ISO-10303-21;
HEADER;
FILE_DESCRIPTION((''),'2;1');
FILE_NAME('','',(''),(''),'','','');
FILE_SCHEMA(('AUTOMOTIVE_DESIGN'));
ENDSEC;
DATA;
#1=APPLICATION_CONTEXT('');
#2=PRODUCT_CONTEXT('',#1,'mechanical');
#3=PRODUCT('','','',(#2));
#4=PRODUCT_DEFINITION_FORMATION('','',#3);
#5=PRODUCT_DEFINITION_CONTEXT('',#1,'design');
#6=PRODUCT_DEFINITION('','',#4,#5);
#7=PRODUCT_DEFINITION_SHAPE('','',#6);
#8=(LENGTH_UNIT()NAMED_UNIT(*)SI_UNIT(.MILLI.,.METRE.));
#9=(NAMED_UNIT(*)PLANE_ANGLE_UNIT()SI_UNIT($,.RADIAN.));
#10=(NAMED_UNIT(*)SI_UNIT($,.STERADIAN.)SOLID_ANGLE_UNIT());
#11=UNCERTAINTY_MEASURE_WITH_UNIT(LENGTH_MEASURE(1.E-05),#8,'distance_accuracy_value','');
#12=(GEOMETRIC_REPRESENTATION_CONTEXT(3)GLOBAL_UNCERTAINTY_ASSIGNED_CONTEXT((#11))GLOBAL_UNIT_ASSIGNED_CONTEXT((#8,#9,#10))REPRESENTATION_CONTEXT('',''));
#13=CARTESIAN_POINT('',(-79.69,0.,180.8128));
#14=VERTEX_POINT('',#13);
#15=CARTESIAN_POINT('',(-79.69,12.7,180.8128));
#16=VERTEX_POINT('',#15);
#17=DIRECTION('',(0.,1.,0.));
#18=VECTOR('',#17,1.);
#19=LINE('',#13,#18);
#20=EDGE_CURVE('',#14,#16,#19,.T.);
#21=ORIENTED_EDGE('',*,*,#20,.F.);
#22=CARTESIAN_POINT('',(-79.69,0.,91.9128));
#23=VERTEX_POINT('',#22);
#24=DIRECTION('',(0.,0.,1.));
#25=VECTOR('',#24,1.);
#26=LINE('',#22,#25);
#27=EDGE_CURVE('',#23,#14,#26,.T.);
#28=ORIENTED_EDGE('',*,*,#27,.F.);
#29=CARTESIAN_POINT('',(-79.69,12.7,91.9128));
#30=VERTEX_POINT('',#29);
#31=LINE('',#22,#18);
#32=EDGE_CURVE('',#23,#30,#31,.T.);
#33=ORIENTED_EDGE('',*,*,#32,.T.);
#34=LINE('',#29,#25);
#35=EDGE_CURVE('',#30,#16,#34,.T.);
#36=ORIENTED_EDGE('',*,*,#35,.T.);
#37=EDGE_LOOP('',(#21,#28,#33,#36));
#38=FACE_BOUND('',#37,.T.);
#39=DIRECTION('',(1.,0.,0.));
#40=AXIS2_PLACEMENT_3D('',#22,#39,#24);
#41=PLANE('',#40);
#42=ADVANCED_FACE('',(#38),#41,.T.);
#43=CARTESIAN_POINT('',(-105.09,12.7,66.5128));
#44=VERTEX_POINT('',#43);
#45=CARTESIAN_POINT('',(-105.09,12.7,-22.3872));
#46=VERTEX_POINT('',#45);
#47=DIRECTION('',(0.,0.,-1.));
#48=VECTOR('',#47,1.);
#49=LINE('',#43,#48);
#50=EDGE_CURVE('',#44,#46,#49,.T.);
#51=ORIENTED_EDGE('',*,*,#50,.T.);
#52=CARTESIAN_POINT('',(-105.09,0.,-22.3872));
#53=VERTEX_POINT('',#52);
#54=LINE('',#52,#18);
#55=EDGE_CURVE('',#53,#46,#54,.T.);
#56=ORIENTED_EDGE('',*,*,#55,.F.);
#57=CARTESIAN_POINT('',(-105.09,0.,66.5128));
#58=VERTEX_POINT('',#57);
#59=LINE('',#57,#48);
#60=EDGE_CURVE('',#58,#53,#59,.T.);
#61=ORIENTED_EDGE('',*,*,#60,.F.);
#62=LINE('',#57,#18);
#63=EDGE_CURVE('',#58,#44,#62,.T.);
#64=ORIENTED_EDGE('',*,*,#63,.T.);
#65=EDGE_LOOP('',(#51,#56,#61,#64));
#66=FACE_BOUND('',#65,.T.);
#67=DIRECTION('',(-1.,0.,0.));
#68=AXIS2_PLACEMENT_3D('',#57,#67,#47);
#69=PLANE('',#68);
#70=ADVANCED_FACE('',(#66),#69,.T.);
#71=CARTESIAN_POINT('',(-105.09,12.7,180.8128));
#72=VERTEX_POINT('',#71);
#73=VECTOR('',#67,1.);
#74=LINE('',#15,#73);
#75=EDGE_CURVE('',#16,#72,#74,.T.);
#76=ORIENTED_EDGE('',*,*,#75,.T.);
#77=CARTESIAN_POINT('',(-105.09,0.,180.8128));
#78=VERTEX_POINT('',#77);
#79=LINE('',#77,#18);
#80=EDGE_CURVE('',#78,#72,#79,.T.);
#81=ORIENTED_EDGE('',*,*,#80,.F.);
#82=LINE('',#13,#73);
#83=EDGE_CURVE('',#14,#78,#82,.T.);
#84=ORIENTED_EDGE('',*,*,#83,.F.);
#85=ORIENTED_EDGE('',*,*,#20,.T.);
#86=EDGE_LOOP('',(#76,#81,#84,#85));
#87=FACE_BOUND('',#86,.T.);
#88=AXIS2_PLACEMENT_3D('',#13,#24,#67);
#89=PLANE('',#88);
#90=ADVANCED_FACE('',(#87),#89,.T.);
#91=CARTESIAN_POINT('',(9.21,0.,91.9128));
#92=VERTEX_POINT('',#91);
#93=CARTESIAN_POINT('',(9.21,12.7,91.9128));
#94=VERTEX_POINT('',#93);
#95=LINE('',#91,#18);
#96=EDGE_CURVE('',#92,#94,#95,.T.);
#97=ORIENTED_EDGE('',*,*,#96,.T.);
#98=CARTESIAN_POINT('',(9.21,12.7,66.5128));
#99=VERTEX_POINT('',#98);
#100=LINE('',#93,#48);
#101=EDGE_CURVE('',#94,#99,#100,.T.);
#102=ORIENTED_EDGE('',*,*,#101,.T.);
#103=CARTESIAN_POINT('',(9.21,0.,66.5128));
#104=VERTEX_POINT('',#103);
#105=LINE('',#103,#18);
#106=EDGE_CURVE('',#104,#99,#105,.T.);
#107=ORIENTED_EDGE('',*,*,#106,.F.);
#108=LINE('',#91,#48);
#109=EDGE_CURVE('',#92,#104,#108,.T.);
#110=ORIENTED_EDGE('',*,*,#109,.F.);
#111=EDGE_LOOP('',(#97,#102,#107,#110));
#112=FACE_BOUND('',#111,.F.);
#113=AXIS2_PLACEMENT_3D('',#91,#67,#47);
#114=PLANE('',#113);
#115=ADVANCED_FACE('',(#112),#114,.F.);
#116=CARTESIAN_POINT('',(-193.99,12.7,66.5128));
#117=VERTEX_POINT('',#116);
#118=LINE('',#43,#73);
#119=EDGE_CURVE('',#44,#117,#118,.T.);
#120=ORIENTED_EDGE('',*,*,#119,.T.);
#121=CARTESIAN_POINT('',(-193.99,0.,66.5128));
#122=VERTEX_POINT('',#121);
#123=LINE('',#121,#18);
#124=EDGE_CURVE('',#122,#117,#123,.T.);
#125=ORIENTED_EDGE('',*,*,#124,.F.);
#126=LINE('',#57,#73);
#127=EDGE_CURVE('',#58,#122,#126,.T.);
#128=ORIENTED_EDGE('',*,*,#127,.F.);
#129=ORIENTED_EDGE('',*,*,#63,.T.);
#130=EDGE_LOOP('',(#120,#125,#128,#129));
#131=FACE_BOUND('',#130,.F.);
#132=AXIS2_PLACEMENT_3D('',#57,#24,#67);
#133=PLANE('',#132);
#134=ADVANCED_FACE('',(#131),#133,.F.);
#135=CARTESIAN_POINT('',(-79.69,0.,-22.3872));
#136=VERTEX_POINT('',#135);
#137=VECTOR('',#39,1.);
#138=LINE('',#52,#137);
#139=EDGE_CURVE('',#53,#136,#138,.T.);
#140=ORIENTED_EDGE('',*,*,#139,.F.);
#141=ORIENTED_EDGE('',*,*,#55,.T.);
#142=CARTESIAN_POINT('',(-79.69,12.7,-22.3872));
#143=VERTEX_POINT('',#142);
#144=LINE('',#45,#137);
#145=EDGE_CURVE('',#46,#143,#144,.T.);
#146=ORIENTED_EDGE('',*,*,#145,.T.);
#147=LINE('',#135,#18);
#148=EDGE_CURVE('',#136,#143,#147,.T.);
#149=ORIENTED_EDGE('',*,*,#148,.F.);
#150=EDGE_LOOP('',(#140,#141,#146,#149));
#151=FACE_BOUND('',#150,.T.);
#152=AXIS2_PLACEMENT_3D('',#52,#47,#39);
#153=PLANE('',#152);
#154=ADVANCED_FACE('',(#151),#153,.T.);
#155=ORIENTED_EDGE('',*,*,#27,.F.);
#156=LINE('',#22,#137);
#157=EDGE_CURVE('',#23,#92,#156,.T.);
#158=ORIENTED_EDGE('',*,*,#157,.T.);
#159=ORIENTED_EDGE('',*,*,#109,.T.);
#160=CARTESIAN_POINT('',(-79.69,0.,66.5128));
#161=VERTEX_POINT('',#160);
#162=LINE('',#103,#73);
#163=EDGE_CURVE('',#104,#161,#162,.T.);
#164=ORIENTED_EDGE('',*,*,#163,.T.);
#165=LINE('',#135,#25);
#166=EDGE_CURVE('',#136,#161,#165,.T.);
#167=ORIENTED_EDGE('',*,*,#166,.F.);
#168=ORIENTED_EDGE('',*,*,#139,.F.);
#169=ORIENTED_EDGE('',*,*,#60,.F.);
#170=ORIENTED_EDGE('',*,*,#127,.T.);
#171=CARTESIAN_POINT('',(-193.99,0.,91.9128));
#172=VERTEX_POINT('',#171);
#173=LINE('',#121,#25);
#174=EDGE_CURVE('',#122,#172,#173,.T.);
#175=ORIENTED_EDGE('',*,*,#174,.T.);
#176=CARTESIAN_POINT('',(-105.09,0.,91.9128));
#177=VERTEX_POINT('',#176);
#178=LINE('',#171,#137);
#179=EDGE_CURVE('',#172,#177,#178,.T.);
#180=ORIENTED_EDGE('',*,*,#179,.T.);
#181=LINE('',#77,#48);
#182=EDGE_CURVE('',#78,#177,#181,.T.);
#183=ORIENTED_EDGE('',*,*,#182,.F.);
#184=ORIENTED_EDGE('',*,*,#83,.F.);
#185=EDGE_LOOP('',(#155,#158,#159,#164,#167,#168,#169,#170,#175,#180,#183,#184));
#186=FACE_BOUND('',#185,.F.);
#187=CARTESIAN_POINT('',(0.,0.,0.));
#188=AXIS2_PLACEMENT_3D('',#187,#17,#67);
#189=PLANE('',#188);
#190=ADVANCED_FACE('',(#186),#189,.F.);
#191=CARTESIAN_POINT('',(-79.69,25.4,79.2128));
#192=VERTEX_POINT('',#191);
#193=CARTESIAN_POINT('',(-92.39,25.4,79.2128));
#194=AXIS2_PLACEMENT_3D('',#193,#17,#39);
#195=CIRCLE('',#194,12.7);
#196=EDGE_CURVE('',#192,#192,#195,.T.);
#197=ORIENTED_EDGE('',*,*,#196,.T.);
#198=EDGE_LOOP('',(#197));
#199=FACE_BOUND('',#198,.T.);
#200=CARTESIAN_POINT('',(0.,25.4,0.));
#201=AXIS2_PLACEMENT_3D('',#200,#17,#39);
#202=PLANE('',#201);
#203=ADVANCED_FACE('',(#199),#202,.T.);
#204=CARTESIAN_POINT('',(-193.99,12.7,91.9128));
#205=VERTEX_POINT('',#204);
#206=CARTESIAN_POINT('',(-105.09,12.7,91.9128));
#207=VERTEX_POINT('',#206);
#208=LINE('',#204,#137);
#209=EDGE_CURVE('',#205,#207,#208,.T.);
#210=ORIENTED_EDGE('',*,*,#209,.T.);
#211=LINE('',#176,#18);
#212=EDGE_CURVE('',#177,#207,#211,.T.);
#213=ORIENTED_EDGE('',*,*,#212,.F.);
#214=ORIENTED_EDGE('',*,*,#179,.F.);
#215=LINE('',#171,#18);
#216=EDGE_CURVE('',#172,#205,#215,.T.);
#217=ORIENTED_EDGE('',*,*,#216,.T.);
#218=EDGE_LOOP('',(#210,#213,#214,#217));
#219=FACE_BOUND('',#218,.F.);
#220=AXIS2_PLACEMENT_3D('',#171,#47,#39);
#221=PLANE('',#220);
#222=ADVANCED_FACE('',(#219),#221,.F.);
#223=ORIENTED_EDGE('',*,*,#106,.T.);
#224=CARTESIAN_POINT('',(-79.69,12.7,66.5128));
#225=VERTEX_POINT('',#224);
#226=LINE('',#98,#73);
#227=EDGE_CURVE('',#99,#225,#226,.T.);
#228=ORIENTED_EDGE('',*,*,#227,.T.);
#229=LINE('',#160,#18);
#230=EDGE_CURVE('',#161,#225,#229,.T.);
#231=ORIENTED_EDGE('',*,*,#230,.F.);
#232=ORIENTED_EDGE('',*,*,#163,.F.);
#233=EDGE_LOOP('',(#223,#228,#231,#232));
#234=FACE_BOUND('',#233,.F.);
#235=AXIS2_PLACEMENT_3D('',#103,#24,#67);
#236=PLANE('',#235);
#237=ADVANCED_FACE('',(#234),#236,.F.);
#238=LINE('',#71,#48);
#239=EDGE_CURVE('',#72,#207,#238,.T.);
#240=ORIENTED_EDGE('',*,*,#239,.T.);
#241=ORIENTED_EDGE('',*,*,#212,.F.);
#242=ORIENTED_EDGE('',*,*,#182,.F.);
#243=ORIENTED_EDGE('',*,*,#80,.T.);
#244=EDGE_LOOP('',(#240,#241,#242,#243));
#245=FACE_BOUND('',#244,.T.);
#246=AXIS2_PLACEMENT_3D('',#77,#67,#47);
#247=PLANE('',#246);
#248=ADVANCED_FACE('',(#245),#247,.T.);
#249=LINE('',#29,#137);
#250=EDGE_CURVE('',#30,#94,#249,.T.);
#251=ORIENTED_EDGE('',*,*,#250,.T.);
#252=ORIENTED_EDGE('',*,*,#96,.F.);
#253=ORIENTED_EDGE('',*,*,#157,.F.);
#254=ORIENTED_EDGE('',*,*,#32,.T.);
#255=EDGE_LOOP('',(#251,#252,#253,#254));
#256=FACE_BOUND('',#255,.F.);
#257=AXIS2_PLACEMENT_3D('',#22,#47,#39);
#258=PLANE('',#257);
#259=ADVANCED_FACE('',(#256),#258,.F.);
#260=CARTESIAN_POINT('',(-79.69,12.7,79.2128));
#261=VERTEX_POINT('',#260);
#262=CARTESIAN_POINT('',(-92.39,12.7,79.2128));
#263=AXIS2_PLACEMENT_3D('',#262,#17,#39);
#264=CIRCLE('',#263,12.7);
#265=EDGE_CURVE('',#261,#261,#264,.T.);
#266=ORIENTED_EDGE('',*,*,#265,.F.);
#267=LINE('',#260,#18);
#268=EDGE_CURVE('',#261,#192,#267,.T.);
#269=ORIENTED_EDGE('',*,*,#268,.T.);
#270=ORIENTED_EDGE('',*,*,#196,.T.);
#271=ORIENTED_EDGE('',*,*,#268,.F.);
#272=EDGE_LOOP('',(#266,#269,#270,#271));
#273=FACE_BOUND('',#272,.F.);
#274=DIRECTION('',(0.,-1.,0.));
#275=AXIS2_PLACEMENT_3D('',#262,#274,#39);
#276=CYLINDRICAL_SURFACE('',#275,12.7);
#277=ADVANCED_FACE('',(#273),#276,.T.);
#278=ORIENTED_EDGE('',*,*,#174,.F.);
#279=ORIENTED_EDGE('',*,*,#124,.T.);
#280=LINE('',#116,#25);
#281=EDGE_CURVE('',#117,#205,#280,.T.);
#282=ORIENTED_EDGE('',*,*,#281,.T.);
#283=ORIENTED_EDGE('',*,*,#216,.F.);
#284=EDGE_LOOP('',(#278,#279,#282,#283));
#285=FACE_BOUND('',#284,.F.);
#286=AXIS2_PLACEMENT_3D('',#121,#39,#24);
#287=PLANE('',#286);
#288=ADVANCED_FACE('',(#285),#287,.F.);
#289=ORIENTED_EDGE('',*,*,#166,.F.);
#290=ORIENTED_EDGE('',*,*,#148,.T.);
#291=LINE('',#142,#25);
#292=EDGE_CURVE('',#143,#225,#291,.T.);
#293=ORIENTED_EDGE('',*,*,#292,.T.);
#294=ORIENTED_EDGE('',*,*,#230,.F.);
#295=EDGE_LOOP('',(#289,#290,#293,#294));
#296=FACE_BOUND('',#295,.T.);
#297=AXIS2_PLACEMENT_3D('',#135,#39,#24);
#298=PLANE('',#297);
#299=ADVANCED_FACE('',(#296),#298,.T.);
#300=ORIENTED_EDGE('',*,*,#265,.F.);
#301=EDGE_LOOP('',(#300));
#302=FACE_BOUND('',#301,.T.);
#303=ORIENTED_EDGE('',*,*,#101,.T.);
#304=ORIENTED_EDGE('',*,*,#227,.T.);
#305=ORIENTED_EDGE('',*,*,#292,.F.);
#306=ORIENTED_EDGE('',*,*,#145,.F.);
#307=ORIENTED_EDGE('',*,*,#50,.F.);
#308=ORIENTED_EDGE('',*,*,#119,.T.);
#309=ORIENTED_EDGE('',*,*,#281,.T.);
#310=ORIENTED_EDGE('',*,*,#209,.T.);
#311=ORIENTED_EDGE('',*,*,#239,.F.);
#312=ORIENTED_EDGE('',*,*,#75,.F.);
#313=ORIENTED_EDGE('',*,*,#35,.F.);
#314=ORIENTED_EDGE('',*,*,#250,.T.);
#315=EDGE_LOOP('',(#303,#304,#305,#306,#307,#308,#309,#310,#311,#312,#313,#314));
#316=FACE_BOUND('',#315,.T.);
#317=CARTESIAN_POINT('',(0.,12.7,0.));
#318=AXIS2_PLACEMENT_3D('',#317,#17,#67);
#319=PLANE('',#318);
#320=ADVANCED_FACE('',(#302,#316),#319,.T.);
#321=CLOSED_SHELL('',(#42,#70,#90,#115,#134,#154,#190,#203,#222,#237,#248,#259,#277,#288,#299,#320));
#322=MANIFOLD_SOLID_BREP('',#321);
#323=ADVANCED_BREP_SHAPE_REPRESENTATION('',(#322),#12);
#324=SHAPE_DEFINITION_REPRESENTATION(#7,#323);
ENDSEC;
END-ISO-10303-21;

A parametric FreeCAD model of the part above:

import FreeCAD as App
import Part
import Sketcher
from FreeCAD import Vector
Q = App.Units.Quantity


def add_polygon(sketch, points):
    """Adds a closed chain of lines whose ends are joined by coincident constraints."""
    first, n = sketch.GeometryCount, len(points)
    for a, b in zip(points, points[1:] + points[:1]):
        sketch.addGeometry(Part.LineSegment(App.Vector(*a, 0), App.Vector(*b, 0)), False)
    for i in range(n):
        sketch.addConstraint(Sketcher.Constraint("Coincident", first + i, 2, first + (i + 1) % n, 1))

doc = App.newDocument("Part")
body = doc.addObject("PartDesign::Body", "Body")

sketch1 = doc.addObject("Sketcher::SketchObject", "Sketch")
body.addObject(sketch1)
sketch1.AttachmentSupport = (doc.XZ_Plane, [""])
sketch1.MapMode = "FlatFace"
add_polygon(sketch1, [(-105, 67), (-194, 67), (-194, 92), (-105, 92), (-105, 181), (-80, 181), (-80, 92), (9, 92), (9, 67), (-80, 67), (-80, -22), (-105, -22)])
sketch1.addConstraint(Sketcher.Constraint("Horizontal", 0))
sketch1.addConstraint(Sketcher.Constraint("Vertical", 1))
sketch1.addConstraint(Sketcher.Constraint("Horizontal", 2))
sketch1.addConstraint(Sketcher.Constraint("Vertical", 3))
sketch1.addConstraint(Sketcher.Constraint("Horizontal", 4))
sketch1.addConstraint(Sketcher.Constraint("Vertical", 5))
sketch1.addConstraint(Sketcher.Constraint("Horizontal", 6))
sketch1.addConstraint(Sketcher.Constraint("Vertical", 7))
sketch1.addConstraint(Sketcher.Constraint("Horizontal", 8))
sketch1.addConstraint(Sketcher.Constraint("Vertical", 9))
sketch1.addConstraint(Sketcher.Constraint("Horizontal", 10))
sketch1.addConstraint(Sketcher.Constraint("Vertical", 11))
sketch1.addConstraint(Sketcher.Constraint("Horizontal", 2, 2, 5, 2))
sketch1.addConstraint(Sketcher.Constraint("Horizontal", 0, 2, 7, 2))
sketch1.addConstraint(Sketcher.Constraint("Vertical", 5, 2, 8, 2))
sketch1.addConstraint(Sketcher.Constraint("Vertical", 3, 2, 10, 2))
sketch1.addConstraint(Sketcher.Constraint("Equal", 2, 6))
sketch1.addConstraint(Sketcher.Constraint("Equal", 10, 1))
sketch1.addConstraint(Sketcher.Constraint("Equal", 8, 3))
sketch1.addConstraint(Sketcher.Constraint("Equal", 5, 9))
sketch1.addConstraint(Sketcher.Constraint("DistanceX", 4, 1, 4, 2, Q("1 in")))
sketch1.addConstraint(Sketcher.Constraint("DistanceX", 1, 2, 6, 2, Q("8 in")))
sketch1.addConstraint(Sketcher.Constraint("DistanceX", 0, 2, -1, 1, Q("7.6374 in")))
sketch1.addConstraint(Sketcher.Constraint("DistanceY", -1, 1, 0, 2, 66.5128))
pad1 = doc.addObject("PartDesign::Pad", "Pad")
body.addObject(pad1)
pad1.Profile = sketch1
pad1.Length = Q("0.5 in")
pad1.Reversed = True

sketch2 = doc.addObject("Sketcher::SketchObject", "Sketch001")
body.addObject(sketch2)
sketch2.AttachmentSupport = (doc.XZ_Plane, [""])
sketch2.MapMode = "FlatFace"
sketch2.AttachmentOffset = App.Placement(Vector(0, 0, -0.5 * 25.4), App.Rotation())
sketch2.addGeometry(Part.Circle(Vector(-92, 79, 0), Vector(0, 0, 1), 13), False)
sketch2.addConstraint(Sketcher.Constraint("Diameter", 0, Q("1 in")))
sketch2.addConstraint(Sketcher.Constraint("DistanceX", 0, 3, -1, 1, Q("3.6374 in")))
sketch2.addConstraint(Sketcher.Constraint("DistanceY", -1, 1, 0, 3, 79.2128))
pad2 = doc.addObject("PartDesign::Pad", "Pad001")
body.addObject(pad2)
pad2.Profile = sketch2
pad2.Length = Q("0.5 in")
pad2.Reversed = True

doc.recompute()
